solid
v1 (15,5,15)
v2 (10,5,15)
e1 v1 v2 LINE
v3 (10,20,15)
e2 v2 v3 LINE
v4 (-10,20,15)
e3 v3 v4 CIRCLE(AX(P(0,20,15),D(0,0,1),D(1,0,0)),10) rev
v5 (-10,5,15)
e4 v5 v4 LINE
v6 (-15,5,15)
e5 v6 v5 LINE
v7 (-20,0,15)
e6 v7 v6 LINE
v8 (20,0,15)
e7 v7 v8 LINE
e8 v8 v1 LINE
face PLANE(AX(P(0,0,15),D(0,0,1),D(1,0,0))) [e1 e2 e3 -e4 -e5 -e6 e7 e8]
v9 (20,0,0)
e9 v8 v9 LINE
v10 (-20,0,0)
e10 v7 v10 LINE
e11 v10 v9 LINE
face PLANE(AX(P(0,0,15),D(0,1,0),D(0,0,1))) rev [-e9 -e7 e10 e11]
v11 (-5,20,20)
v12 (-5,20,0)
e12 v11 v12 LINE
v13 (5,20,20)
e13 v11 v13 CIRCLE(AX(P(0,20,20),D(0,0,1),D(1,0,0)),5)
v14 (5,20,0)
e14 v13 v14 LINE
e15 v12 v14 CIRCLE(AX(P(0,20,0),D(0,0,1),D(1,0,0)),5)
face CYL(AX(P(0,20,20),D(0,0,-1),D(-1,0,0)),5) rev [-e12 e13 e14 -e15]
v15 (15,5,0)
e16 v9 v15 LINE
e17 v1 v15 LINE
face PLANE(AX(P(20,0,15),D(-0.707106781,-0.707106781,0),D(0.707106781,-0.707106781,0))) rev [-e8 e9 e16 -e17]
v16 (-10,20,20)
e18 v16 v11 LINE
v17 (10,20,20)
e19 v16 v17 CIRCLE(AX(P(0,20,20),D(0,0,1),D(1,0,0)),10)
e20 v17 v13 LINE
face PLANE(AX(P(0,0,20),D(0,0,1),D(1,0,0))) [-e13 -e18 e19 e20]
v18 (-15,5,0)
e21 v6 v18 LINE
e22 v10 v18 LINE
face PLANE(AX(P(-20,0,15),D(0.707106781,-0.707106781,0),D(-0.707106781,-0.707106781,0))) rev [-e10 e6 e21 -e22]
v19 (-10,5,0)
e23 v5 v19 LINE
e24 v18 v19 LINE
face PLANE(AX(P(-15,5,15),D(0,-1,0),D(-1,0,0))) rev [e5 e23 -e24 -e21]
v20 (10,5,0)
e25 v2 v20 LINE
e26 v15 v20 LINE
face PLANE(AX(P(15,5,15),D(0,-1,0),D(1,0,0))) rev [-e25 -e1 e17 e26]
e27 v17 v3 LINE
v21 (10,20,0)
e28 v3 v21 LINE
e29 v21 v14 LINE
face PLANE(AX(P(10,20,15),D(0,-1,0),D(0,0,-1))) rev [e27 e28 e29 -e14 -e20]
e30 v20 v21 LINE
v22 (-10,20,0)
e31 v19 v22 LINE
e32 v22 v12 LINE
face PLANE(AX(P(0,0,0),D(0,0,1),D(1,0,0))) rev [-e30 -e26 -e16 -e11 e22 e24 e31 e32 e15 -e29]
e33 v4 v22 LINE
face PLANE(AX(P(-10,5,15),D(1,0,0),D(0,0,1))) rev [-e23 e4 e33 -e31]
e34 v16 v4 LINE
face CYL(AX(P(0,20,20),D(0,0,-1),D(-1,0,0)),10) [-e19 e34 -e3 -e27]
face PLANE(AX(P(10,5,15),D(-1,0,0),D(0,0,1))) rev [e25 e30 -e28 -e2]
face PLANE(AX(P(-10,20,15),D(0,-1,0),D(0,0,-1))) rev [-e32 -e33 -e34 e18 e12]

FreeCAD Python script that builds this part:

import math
import FreeCAD as App
import Part
import Sketcher

V = App.Vector


def add_polygon(sketch, points):
    """Adds a closed chain of lines whose ends are joined by coincident constraints."""
    first, n = sketch.GeometryCount, len(points)
    for a, b in zip(points, points[1:] + points[:1]):
        sketch.addGeometry(Part.LineSegment(App.Vector(*a, 0), App.Vector(*b, 0)), False)
    for i in range(n):
        sketch.addConstraint(Sketcher.Constraint("Coincident", first + i, 2, first + (i + 1) % n, 1))

doc = App.newDocument("Part")
body = doc.addObject("PartDesign::Body", "Body")

# Sketch on XY plane
sketch1 = body.newObject("Sketcher::SketchObject", "Sketch")
sketch1.AttachmentSupport = (doc.getObject("XY_Plane"), [""])
sketch1.MapMode = "FlatFace"
add_polygon(sketch1, [(0, 0), (20, 0), (15, 5), (10, 5), (10, 20), (0, 20)])  # lines 0-5
sketch1.addConstraint([
    Sketcher.Constraint("Horizontal", 0),
    Sketcher.Constraint("Horizontal", 2),
    Sketcher.Constraint("Vertical", 3),
    Sketcher.Constraint("Horizontal", 4),
    Sketcher.Constraint("Vertical", 5),
    Sketcher.Constraint("Coincident", 5, 2, -1, 1),
    Sketcher.Constraint("Equal", 0, 5),
    Sketcher.Constraint("DistanceX", 0, 1, 0, 2, 20.0),
    Sketcher.Constraint("DistanceX", 2, 2, 2, 1, 5.0),
    Sketcher.Constraint("DistanceX", 4, 2, 4, 1, 10.0),
    Sketcher.Constraint("DistanceY", 3, 1, 3, 2, 15.0),
])
pad1 = body.newObject("PartDesign::Pad", "Pad")
pad1.Profile = sketch1
pad1.Length = 15

# Sketch on XY plane
sketch2 = body.newObject("Sketcher::SketchObject", "Sketch001")
sketch2.AttachmentSupport = (doc.getObject("XY_Plane"), [""])
sketch2.MapMode = "FlatFace"
sketch2.addGeometry([
    Part.ArcOfCircle(Part.Circle(V(0, 20, 0), V(0, 0, 1), 10), math.radians(-90), math.radians(0)),
    Part.LineSegment(V(10, 20, 0), V(5, 20, 0)),
    Part.ArcOfCircle(Part.Circle(V(0, 20, 0), V(0, 0, 1), 5), math.radians(-90), math.radians(0)),
    Part.LineSegment(V(0, 15, 0), V(0, 10, 0)),
], False)
sketch2.addConstraint([
    Sketcher.Constraint("Coincident", 0, 2, 1, 1),
    Sketcher.Constraint("Coincident", 1, 2, 2, 2),
    Sketcher.Constraint("Coincident", 2, 1, 3, 1),
    Sketcher.Constraint("Coincident", 3, 2, 0, 1),
    Sketcher.Constraint("Horizontal", 1),
    Sketcher.Constraint("Vertical", 3),
    Sketcher.Constraint("Coincident", 2, 3, 0, 3),
    Sketcher.Constraint("PointOnObject", 0, 3, -2),
    Sketcher.Constraint("PointOnObject", 2, 1, -2),
    Sketcher.Constraint("Horizontal", 2, 3, 0, 2),
    Sketcher.Constraint("Radius", 0, 10.0),
    Sketcher.Constraint("Radius", 2, 5.0),
    Sketcher.Constraint("DistanceY", -1, 1, 0, 3, 20.0),
])
pad2 = body.newObject("PartDesign::Pad", "Pad001")
pad2.Profile = sketch2
pad2.Length = 20

# Sketch on XY plane
sketch3 = body.newObject("Sketcher::SketchObject", "Sketch002")
sketch3.AttachmentSupport = (doc.getObject("XY_Plane"), [""])
sketch3.MapMode = "FlatFace"
sketch3.addGeometry([
    Part.ArcOfCircle(Part.Circle(V(0, 20, 0), V(0, 0, 1), 5), math.radians(-90), math.radians(0)),
    Part.LineSegment(V(5, 20, 0), V(0, 20, 0)),
    Part.LineSegment(V(0, 20, 0), V(0, 15, 0)),
], False)
sketch3.addConstraint([
    Sketcher.Constraint("Coincident", 0, 2, 1, 1),
    Sketcher.Constraint("Coincident", 1, 2, 2, 1),
    Sketcher.Constraint("Coincident", 2, 2, 0, 1),
    Sketcher.Constraint("Horizontal", 1),
    Sketcher.Constraint("Vertical", 2),
    Sketcher.Constraint("Coincident", 1, 2, 0, 3),
    Sketcher.Constraint("PointOnObject", 0, 3, -2),
    Sketcher.Constraint("Radius", 0, 5.0),
    Sketcher.Constraint("DistanceY", -1, 1, 0, 3, 20.0),
])
pocket1 = body.newObject("PartDesign::Pocket", "Pocket")
pocket1.Profile = sketch3
pocket1.Length = 20
pocket1.Reversed = True
doc.recompute()

mirrored = body.newObject("PartDesign::Mirrored", "Mirrored")
mirrored.Originals = [pad1, pad2, pocket1]
mirrored.MirrorPlane = (doc.getObject("YZ_Plane"), [""])
body.Tip = mirrored

doc.recompute()
